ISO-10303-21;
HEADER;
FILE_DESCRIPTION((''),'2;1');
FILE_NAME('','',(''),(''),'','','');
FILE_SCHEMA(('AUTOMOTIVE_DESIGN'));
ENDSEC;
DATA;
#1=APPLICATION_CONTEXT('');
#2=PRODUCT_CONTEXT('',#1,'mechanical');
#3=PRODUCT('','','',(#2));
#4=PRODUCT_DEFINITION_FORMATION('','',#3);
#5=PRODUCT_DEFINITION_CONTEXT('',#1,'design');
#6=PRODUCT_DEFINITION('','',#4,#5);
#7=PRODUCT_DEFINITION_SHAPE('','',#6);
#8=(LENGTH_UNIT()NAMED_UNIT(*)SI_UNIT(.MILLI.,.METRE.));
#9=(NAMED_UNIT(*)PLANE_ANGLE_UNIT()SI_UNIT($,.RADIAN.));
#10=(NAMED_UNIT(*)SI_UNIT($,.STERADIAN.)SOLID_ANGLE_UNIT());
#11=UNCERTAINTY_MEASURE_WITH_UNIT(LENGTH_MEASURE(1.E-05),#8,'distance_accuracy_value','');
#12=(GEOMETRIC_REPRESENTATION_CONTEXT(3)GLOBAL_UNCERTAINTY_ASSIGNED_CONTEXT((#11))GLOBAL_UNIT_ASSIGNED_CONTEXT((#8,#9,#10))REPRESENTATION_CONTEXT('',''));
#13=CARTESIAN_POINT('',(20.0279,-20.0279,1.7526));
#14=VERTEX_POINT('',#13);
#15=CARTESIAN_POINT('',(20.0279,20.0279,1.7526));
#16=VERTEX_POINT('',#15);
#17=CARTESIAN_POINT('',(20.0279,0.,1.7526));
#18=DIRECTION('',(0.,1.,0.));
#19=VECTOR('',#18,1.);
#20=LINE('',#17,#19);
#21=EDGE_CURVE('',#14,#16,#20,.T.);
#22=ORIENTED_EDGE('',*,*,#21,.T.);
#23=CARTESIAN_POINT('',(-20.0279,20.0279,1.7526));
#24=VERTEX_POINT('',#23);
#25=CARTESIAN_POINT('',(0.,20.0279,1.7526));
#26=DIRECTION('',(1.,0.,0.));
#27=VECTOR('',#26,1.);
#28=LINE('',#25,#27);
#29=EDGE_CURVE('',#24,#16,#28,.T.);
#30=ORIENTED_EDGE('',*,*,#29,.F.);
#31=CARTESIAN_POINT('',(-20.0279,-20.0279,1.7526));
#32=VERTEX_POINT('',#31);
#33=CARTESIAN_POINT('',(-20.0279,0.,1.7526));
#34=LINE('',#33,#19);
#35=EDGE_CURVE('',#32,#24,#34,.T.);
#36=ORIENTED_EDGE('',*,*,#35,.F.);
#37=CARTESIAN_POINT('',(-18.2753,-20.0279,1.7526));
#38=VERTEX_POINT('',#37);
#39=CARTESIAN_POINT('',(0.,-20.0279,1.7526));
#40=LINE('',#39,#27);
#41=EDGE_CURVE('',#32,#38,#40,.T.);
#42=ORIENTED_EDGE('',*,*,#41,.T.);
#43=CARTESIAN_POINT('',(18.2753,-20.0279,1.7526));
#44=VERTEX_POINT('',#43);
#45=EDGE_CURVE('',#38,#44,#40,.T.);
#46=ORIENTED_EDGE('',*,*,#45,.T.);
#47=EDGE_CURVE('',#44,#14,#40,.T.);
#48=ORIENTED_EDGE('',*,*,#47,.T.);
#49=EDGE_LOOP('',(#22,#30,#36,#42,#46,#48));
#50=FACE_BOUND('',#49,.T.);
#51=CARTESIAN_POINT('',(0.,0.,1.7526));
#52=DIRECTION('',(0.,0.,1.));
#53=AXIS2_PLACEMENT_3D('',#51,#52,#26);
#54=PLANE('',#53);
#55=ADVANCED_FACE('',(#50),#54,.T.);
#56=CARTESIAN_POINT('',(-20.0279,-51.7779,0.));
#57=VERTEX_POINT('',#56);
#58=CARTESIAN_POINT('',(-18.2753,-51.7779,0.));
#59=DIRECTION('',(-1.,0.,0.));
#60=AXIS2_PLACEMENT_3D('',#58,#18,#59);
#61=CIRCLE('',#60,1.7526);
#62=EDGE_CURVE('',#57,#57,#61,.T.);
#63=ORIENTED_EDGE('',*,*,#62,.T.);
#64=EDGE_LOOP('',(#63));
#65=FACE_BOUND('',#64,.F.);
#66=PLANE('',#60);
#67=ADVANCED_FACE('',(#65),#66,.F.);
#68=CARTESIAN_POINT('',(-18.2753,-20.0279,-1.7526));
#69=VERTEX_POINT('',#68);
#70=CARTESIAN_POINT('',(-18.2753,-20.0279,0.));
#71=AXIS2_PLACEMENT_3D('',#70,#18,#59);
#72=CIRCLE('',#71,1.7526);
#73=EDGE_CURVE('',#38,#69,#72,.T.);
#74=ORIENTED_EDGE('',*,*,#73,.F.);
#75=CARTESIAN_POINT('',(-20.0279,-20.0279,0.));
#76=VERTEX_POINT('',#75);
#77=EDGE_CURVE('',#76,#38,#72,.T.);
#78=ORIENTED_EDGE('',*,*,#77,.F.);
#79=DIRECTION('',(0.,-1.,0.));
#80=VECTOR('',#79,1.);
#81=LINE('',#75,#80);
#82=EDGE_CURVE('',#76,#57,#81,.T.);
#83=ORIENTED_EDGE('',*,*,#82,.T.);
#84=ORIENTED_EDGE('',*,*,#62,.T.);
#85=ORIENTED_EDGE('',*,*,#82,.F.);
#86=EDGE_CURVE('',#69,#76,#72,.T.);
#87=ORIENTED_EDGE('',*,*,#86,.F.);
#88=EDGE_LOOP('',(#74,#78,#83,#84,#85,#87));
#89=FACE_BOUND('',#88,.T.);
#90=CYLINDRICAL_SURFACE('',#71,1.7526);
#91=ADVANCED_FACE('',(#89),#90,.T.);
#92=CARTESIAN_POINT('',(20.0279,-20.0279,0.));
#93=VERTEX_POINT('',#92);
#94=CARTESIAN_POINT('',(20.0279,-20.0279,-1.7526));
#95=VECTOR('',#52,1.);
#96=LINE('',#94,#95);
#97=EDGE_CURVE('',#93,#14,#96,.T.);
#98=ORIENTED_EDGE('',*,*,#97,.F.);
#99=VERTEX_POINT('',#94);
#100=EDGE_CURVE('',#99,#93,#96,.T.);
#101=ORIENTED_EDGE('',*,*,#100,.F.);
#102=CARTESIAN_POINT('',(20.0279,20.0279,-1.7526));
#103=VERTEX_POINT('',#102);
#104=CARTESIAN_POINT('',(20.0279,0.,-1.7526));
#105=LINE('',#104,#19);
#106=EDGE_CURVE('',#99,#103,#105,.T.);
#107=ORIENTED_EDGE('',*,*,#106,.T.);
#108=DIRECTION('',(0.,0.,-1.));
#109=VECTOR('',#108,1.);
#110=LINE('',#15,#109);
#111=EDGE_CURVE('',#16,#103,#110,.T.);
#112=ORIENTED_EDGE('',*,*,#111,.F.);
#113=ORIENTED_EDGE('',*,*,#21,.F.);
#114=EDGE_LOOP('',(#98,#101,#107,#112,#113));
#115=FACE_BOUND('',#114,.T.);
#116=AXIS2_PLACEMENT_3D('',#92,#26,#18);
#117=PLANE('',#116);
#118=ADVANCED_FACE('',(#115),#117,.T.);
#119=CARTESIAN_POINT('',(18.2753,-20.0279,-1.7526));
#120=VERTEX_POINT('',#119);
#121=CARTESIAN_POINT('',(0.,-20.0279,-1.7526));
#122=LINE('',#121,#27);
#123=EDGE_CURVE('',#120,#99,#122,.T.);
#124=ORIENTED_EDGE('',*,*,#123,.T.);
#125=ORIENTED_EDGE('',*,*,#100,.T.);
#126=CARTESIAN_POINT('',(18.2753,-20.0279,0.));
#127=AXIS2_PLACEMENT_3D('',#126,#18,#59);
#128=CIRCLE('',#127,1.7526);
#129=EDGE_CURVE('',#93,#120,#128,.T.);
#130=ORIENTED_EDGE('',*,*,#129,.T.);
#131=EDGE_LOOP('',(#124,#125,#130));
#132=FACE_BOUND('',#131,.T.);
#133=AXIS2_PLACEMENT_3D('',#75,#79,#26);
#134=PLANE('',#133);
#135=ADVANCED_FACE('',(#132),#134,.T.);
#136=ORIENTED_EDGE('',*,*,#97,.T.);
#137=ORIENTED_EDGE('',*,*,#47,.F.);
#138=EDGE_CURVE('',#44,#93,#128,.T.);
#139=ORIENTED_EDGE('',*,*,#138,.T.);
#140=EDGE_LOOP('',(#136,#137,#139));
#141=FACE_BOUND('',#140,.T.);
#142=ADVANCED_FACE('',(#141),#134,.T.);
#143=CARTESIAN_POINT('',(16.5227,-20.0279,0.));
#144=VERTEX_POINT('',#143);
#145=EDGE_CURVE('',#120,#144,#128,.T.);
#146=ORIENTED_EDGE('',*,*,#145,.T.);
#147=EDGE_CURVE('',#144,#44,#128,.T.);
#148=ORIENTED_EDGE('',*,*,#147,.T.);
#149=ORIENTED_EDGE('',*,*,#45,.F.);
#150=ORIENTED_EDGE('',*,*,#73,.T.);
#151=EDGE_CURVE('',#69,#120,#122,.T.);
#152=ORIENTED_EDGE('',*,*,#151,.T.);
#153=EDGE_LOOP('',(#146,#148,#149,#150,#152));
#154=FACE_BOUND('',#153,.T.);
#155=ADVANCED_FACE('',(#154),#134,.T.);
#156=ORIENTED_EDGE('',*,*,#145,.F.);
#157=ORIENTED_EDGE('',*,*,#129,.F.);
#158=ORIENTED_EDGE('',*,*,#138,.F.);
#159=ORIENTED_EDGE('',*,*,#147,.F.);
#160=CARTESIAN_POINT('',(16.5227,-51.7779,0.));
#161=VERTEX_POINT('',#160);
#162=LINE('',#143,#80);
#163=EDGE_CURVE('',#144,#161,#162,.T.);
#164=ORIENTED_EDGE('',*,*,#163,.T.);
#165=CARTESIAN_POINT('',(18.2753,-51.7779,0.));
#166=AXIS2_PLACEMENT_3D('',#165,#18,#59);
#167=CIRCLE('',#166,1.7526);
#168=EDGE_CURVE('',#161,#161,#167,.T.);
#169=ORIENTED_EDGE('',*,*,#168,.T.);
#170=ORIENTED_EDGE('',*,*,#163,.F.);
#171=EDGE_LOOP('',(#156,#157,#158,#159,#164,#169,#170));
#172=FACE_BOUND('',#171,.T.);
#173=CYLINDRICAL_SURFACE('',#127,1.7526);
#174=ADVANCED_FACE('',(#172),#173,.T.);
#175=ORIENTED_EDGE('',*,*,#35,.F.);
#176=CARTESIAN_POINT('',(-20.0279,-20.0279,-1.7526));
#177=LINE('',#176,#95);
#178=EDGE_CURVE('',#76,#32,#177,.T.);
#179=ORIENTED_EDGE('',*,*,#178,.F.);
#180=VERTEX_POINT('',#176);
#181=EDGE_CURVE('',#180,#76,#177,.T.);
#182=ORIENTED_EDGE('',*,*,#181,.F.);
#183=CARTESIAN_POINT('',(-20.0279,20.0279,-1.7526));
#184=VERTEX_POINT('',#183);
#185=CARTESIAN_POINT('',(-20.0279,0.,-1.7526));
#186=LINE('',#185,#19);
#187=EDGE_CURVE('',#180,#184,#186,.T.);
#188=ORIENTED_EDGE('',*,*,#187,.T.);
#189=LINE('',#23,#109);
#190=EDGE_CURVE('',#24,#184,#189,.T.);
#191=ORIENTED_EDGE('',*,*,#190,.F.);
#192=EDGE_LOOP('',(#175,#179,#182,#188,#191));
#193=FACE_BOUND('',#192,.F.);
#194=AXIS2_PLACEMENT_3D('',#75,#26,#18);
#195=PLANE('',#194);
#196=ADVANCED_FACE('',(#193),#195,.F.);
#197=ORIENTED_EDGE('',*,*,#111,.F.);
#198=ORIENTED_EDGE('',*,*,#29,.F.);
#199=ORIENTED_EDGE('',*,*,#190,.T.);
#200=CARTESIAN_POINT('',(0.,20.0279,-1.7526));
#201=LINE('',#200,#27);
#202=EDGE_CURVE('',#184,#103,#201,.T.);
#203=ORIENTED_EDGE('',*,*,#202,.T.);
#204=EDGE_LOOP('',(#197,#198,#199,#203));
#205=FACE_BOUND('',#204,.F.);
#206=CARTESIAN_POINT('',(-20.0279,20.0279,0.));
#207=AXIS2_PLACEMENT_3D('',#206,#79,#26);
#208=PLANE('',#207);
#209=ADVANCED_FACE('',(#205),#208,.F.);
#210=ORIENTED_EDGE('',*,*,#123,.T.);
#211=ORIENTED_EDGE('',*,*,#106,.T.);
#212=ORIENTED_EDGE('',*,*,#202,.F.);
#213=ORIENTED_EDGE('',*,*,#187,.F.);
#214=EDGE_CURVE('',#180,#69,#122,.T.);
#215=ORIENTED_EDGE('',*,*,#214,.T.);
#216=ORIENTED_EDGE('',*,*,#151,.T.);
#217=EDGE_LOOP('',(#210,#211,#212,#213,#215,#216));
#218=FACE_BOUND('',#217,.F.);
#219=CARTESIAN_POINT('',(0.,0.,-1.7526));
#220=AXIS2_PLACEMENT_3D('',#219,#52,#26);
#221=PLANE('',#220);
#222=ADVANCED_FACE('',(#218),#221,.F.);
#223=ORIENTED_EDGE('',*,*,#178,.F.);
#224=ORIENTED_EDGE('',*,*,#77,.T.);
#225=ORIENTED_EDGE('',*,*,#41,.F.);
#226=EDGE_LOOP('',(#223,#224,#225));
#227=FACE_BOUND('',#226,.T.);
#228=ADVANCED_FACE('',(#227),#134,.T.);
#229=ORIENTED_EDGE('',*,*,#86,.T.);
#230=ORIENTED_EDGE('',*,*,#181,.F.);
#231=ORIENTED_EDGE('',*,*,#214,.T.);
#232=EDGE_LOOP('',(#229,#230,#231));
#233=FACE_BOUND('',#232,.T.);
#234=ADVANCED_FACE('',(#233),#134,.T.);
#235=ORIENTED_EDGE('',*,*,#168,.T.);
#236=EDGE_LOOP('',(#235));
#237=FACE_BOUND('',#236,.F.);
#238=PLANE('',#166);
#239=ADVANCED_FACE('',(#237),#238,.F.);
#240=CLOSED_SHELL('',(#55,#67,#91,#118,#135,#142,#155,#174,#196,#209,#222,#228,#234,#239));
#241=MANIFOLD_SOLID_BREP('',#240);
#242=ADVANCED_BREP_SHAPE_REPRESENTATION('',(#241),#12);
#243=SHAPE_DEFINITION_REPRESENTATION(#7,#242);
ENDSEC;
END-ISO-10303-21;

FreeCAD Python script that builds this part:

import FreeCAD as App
import Part
import Sketcher
from FreeCAD import Vector
Q = App.Units.Quantity

doc = App.newDocument("Part")
params = doc.addObject("Spreadsheet::Sheet", "Params")
for row, (alias, value) in enumerate([
    ("sketch1_width", "1.577 in"),
    ("pad1_length", "0.138 in"),
    ("sketch2_diameter", "0.138 in"),
    ("pad2_length", "1.25 in"),
    ("sketch3_width", "1.577 in"),
    ("pad3_length", "0.019685 mm"),
    ("sketch4_width", "1.577 in"),
    ("sketch4_height", "1.735 in"),
    ("pad4_length", "0.019685 mm"),
], start=1):
    params.set(f"A{row}", alias)
    params.set(f"B{row}", "=" + value)
    params.setAlias(f"B{row}", alias)

body = doc.addObject("PartDesign::Body", "Body")

# Sketch on XY plane
sketch1 = body.newObject("Sketcher::SketchObject", "Sketch")
sketch1.AttachmentSupport = (doc.getObject("XY_Plane"), [""])
sketch1.MapMode = "FlatFace"
sketch1.addGeometry([
    Part.LineSegment(Vector(-20.0279, 20.0279, 0), Vector(-20.0279, -20.0279, 0)),
    Part.LineSegment(Vector(-20.0279, -20.0279, 0), Vector(20.0279, -20.0279, 0)),
    Part.LineSegment(Vector(20.0279, -20.0279, 0), Vector(20.0279, 20.0279, 0)),
    Part.LineSegment(Vector(20.0279, 20.0279, 0), Vector(-20.0279, 20.0279, 0)),
], False)
sketch1.addConstraint([
    Sketcher.Constraint("Coincident", 0, 2, 1, 1),
    Sketcher.Constraint("Coincident", 1, 2, 2, 1),
    Sketcher.Constraint("Coincident", 2, 2, 3, 1),
    Sketcher.Constraint("Coincident", 3, 2, 0, 1),
    Sketcher.Constraint("Vertical", 0),
    Sketcher.Constraint("Horizontal", 1),
    Sketcher.Constraint("Vertical", 2),
    Sketcher.Constraint("Horizontal", 3),
    Sketcher.Constraint("Symmetric", 0, 2, 2, 2, -1, 1),
    Sketcher.Constraint("Equal", 3, 0),
    Sketcher.Constraint("DistanceX", 1, 1, 1, 2, Q("1.577 in")),
])
sketch1.setExpression("Constraints[10]", "Params.sketch1_width")
pad1 = body.newObject("PartDesign::Pad", "Pad")
pad1.Profile = sketch1
pad1.setExpression("Length", "Params.pad1_length")
pad1.Midplane = True

# Sketch on XZ plane
sketch2 = body.newObject("Sketcher::SketchObject", "Sketch001")
sketch2.AttachmentSupport = (doc.getObject("XZ_Plane"), [""])
sketch2.MapMode = "FlatFace"
sketch2.AttachmentOffset = App.Placement(Vector(0, 0, 0.7885 * 25.4), App.Rotation())
sketch2.addGeometry([
    Part.Circle(Vector(18.2753, 0, 0), Vector(0, 0, 1), 1.7526),
    Part.Circle(Vector(-18.2753, 0, 0), Vector(0, 0, 1), 1.7526),
], False)
sketch2.addConstraint([
    Sketcher.Constraint("Equal", 0, 1),
    Sketcher.Constraint("Symmetric", 0, 3, 1, 3, -1, 1),
    Sketcher.Constraint("PointOnObject", 0, 3, -1),
    Sketcher.Constraint("Diameter", 0, Q("0.138 in")),
    Sketcher.Constraint("DistanceX", 1, 3, 0, 3, Q("1.439 in")),
])
sketch2.setExpression("Constraints[3]", "Params.sketch2_diameter")
pad2 = body.newObject("PartDesign::Pad", "Pad001")
pad2.Profile = sketch2
pad2.setExpression("Length", "Params.pad2_length")
body2 = doc.addObject("PartDesign::Body", "Body001")

# Sketch on XY plane
sketch3 = body2.newObject("Sketcher::SketchObject", "Sketch002")
sketch3.AttachmentSupport = (doc.getObject("XY_Plane001"), [""])
sketch3.MapMode = "FlatFace"
sketch3.addGeometry([
    Part.LineSegment(Vector(-20.0279, 20.0279, 0), Vector(-20.0279, -20.0279, 0)),
    Part.LineSegment(Vector(-20.0279, -20.0279, 0), Vector(20.0279, -20.0279, 0)),
    Part.LineSegment(Vector(20.0279, -20.0279, 0), Vector(20.0279, 20.0279, 0)),
    Part.LineSegment(Vector(20.0279, 20.0279, 0), Vector(-20.0279, 20.0279, 0)),
], False)
sketch3.addConstraint([
    Sketcher.Constraint("Coincident", 0, 2, 1, 1),
    Sketcher.Constraint("Coincident", 1, 2, 2, 1),
    Sketcher.Constraint("Coincident", 2, 2, 3, 1),
    Sketcher.Constraint("Coincident", 3, 2, 0, 1),
    Sketcher.Constraint("Vertical", 0),
    Sketcher.Constraint("Horizontal", 1),
    Sketcher.Constraint("Vertical", 2),
    Sketcher.Constraint("Horizontal", 3),
    Sketcher.Constraint("Symmetric", 0, 2, 2, 2, -1, 1),
    Sketcher.Constraint("Equal", 3, 0),
    Sketcher.Constraint("DistanceX", 1, 1, 1, 2, Q("1.577 in")),
])
sketch3.setExpression("Constraints[10]", "Params.sketch3_width")
pad3 = body2.newObject("PartDesign::Pad", "Pad002")
pad3.Profile = sketch3
pad3.setExpression("Length", "Params.pad3_length")
body3 = doc.addObject("PartDesign::Body", "Body002")

# Sketch on XY plane
sketch4 = body3.newObject("Sketcher::SketchObject", "Sketch003")
sketch4.AttachmentSupport = (doc.getObject("XY_Plane002"), [""])
sketch4.MapMode = "FlatFace"
sketch4.AttachmentOffset = App.Placement(Vector(0, 0, -0.069 * 25.4), App.Rotation())
sketch4.addGeometry([
    Part.LineSegment(Vector(-20.0279, -24.0411, 0), Vector(-20.0279, 20.0279, 0)),
    Part.LineSegment(Vector(-20.0279, 20.0279, 0), Vector(20.0279, 20.0279, 0)),
    Part.LineSegment(Vector(20.0279, 20.0279, 0), Vector(20.0279, -24.0411, 0)),
    Part.LineSegment(Vector(20.0279, -24.0411, 0), Vector(-20.0279, -24.0411, 0)),
], False)
sketch4.addConstraint([
    Sketcher.Constraint("Coincident", 0, 2, 1, 1),
    Sketcher.Constraint("Coincident", 1, 2, 2, 1),
    Sketcher.Constraint("Coincident", 2, 2, 3, 1),
    Sketcher.Constraint("Coincident", 3, 2, 0, 1),
    Sketcher.Constraint("Vertical", 0),
    Sketcher.Constraint("Horizontal", 1),
    Sketcher.Constraint("Vertical", 2),
    Sketcher.Constraint("Horizontal", 3),
    Sketcher.Constraint("DistanceX", 1, 1, 1, 2, Q("1.577 in")),
    Sketcher.Constraint("DistanceY", 0, 1, 0, 2, Q("1.735 in")),
    Sketcher.Constraint("DistanceX", 0, 2, -1, 1, Q("0.7885 in")),
    Sketcher.Constraint("DistanceY", -1, 1, 0, 2, Q("0.7885 in")),
])
sketch4.setExpression("Constraints[8]", "Params.sketch4_width")
sketch4.setExpression("Constraints[9]", "Params.sketch4_height")
pad4 = body3.newObject("PartDesign::Pad", "Pad003")
pad4.Profile = sketch4
pad4.setExpression("Length", "Params.pad4_length")
pad4.Reversed = True
body2.Visibility = False
body3.Visibility = False

doc.recompute()
